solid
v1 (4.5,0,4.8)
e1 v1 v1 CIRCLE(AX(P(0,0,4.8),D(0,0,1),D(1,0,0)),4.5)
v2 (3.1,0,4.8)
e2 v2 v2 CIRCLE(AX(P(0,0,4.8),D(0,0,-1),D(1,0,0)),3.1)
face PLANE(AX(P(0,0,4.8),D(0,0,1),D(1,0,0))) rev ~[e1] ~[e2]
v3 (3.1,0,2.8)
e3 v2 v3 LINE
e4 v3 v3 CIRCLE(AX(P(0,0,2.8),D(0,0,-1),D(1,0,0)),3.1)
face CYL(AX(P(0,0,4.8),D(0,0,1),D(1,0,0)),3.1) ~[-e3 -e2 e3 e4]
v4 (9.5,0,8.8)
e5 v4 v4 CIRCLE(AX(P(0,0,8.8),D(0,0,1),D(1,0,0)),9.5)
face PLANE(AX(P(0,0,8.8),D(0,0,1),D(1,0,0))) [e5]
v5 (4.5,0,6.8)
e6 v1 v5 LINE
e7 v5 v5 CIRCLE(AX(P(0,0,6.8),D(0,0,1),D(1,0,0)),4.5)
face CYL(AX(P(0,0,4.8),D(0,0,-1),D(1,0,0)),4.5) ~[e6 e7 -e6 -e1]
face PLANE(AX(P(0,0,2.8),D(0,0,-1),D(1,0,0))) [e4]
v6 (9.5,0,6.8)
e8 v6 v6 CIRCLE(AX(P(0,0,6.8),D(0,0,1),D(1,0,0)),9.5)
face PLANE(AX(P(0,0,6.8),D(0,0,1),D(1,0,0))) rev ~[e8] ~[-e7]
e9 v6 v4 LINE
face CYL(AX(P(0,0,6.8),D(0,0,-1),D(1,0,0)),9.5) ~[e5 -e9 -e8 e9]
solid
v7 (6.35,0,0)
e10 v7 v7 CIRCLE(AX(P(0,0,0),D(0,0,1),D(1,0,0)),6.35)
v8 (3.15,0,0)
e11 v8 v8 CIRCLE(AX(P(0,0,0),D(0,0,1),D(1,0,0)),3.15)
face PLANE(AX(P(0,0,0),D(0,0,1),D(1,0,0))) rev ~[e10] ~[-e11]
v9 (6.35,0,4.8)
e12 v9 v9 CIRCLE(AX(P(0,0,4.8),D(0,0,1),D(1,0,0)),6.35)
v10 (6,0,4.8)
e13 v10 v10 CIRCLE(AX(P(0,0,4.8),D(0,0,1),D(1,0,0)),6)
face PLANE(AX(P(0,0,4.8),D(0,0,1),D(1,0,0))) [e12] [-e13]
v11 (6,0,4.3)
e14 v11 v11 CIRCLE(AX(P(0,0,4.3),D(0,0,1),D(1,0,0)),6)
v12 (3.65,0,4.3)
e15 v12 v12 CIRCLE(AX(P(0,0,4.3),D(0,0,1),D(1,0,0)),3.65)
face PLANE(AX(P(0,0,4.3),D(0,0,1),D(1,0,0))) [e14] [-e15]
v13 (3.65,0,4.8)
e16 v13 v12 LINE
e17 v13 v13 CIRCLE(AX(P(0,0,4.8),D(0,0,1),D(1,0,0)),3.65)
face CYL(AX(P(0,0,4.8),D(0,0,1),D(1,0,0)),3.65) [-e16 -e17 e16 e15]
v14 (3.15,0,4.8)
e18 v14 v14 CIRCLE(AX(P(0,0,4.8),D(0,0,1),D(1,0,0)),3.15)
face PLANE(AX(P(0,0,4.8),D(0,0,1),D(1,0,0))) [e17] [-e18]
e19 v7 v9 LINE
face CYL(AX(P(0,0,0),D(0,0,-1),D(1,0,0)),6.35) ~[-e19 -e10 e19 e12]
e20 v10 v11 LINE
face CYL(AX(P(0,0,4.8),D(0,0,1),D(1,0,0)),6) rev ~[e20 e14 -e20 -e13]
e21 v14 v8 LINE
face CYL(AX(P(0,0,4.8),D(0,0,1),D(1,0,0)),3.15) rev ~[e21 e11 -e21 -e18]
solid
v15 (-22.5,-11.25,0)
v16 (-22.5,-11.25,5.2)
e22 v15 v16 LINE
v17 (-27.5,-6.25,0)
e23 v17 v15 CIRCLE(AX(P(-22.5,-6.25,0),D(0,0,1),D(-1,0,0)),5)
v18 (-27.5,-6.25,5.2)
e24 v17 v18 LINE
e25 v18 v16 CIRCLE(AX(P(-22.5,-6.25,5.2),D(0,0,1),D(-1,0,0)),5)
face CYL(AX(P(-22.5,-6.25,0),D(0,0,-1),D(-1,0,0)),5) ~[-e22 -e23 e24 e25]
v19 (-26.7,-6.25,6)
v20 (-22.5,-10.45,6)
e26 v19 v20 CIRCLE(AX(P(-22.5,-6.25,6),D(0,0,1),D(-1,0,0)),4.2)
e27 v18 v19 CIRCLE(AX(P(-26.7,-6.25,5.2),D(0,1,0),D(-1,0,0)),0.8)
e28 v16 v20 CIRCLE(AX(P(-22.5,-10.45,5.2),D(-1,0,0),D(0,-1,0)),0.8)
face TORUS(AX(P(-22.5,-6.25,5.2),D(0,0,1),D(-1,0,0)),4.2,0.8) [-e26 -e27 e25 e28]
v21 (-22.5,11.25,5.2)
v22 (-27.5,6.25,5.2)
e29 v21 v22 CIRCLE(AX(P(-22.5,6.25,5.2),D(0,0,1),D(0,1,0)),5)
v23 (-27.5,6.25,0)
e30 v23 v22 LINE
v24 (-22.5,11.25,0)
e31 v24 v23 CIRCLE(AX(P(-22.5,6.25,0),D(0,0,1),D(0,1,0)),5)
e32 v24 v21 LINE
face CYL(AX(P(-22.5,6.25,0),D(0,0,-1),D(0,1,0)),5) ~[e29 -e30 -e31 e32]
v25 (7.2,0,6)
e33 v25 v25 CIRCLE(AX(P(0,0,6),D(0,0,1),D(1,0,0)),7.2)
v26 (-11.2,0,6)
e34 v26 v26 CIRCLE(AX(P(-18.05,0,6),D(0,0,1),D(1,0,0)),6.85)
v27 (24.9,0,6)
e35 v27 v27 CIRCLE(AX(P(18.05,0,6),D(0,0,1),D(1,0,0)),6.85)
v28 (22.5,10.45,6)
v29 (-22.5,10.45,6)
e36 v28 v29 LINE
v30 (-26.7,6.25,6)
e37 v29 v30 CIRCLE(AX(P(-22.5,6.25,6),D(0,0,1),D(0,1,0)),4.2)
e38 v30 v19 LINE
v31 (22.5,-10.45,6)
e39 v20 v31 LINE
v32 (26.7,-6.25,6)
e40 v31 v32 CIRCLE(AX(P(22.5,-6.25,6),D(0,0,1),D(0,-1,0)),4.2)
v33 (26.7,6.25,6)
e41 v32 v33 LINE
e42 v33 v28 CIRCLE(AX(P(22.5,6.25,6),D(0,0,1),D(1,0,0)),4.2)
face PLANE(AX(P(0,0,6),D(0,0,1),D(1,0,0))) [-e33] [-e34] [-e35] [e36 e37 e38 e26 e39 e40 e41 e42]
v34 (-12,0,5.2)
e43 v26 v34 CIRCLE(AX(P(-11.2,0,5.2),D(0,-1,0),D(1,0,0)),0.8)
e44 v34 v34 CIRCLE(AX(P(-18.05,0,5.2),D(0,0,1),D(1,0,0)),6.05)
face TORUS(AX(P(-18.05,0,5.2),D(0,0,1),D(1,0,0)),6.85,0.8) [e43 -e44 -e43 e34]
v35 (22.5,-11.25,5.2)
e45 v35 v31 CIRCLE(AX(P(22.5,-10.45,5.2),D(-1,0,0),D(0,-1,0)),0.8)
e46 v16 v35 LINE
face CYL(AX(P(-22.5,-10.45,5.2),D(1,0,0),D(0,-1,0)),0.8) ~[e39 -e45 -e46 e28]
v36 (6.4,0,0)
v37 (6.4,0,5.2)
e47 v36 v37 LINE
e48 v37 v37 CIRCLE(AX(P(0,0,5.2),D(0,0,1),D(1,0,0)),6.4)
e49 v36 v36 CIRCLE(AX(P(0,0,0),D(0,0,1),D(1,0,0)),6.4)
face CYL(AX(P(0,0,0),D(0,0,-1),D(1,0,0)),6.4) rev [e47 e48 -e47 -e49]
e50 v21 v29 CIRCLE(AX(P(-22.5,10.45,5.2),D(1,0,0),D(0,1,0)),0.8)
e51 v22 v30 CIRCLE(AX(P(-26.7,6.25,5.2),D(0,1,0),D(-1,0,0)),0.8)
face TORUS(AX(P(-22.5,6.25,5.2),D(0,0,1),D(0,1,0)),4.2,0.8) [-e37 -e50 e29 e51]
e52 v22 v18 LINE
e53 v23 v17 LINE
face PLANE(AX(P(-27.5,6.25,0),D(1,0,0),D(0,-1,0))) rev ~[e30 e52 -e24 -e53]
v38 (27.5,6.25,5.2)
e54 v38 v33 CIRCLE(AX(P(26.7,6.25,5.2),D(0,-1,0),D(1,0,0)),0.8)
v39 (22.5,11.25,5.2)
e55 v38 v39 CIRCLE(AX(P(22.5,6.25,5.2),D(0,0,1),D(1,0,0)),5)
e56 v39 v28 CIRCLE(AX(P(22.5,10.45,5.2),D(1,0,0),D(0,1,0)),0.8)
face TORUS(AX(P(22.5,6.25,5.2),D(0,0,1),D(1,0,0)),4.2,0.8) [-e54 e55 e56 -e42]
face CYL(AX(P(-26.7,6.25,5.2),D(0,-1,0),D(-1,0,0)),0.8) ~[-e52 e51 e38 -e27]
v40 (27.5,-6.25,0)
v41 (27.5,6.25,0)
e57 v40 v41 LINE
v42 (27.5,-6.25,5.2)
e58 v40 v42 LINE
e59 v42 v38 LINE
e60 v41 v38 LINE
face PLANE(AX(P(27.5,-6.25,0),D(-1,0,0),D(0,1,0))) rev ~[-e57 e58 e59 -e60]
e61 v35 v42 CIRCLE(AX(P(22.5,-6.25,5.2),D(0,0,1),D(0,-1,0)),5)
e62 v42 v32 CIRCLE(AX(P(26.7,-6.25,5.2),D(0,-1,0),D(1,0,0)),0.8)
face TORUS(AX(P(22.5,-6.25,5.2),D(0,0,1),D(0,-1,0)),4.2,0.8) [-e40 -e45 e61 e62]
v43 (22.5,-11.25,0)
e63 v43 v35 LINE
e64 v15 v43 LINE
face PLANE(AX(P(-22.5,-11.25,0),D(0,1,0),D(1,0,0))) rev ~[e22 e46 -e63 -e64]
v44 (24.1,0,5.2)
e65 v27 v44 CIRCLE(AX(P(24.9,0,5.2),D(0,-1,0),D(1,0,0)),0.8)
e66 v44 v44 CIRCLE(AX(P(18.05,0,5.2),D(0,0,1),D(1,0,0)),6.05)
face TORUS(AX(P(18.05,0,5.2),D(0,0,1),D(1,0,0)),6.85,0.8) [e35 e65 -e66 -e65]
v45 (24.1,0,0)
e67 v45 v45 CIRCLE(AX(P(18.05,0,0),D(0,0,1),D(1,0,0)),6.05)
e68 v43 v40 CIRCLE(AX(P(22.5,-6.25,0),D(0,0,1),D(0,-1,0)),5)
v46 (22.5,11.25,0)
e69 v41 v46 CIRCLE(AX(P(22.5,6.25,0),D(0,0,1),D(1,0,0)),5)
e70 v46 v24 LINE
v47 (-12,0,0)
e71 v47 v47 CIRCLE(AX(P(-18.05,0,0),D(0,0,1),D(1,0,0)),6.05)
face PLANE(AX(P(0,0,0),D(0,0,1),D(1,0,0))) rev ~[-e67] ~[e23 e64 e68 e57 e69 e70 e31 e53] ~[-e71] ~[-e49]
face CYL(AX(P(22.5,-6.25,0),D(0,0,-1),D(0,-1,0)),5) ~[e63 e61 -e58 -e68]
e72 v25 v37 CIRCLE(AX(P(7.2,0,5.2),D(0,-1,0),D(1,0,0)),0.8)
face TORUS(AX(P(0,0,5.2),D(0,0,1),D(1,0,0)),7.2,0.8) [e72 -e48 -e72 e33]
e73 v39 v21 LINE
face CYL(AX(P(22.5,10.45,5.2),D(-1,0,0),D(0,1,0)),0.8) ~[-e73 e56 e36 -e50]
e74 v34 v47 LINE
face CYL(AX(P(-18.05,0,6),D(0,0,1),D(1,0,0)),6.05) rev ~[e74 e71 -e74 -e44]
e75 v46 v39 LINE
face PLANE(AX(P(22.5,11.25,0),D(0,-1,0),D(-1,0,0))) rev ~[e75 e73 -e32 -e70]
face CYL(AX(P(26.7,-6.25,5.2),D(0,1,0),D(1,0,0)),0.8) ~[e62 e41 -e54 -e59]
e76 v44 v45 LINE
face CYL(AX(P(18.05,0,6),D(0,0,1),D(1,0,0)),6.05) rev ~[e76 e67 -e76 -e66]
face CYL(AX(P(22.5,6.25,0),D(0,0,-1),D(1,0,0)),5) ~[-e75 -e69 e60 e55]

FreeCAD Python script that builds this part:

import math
import FreeCAD as App
import Part
import Sketcher


def edges_at(feature, points):
    """Names of the edges that pass closest to the given points."""
    edges = feature.Shape.Edges
    near = lambda p: min(range(len(edges)), key=lambda i: edges[i].distToShape(Part.Vertex(*p))[0])
    return sorted({f"Edge{near(p) + 1}" for p in points})

doc = App.newDocument("Part")
body = doc.addObject("PartDesign::Body", "Body")

sketch1 = doc.addObject("Sketcher::SketchObject", "Sketch")
body.addObject(sketch1)
sketch1.AttachmentSupport = (doc.XY_Plane, [""])
sketch1.MapMode = "FlatFace"
sketch1.addGeometry(Part.Circle(App.Vector(0, 0, 0), App.Vector(0, 0, 1), 6.35), False)
sketch1.addConstraint([
    Sketcher.Constraint("Coincident", 0, 3, -1, 1),
    Sketcher.Constraint("Diameter", 0, 12.7),
])
pad1 = doc.addObject("PartDesign::Pad", "Pad")
body.addObject(pad1)
pad1.Profile = sketch1
pad1.Length = 4.8

sketch2 = doc.addObject("Sketcher::SketchObject", "Sketch001")
body.addObject(sketch2)
sketch2.AttachmentSupport = (doc.XY_Plane, [""])
sketch2.MapMode = "FlatFace"
sketch2.AttachmentOffset = App.Placement(App.Vector(0, 0, 4.8), App.Rotation())
sketch2.addGeometry(Part.Circle(App.Vector(0, 0, 0), App.Vector(0, 0, 1), 3.15), False)
sketch2.addConstraint([
    Sketcher.Constraint("Coincident", 0, 3, -1, 1),
    Sketcher.Constraint("Diameter", 0, 6.3),
])
pocket1 = doc.addObject("PartDesign::Pocket", "Pocket")
body.addObject(pocket1)
pocket1.Profile = sketch2
pocket1.Type = "ThroughAll"

sketch3 = doc.addObject("Sketcher::SketchObject", "Sketch002")
body.addObject(sketch3)
sketch3.AttachmentSupport = (doc.XY_Plane, [""])
sketch3.MapMode = "FlatFace"
sketch3.AttachmentOffset = App.Placement(App.Vector(0, 0, 4.8), App.Rotation())
sketch3.addGeometry([
    Part.Circle(App.Vector(0, 0, 0), App.Vector(0, 0, 1), 6),
    Part.Circle(App.Vector(0, 0, 0), App.Vector(0, 0, 1), 3.65),
], False)
sketch3.addConstraint([
    Sketcher.Constraint("Coincident", 0, 3, -1, 1),
    Sketcher.Constraint("Coincident", 1, 3, -1, 1),
    Sketcher.Constraint("Diameter", 0, 12.0),
    Sketcher.Constraint("Diameter", 1, 7.3),
])
pocket2 = doc.addObject("PartDesign::Pocket", "Pocket001")
body.addObject(pocket2)
pocket2.Profile = sketch3
pocket2.Length = 0.5
body2 = doc.addObject("PartDesign::Body", "Body001")

sketch4 = doc.addObject("Sketcher::SketchObject", "Sketch003")
body2.addObject(sketch4)
sketch4.AttachmentSupport = (doc.getObject("XY_Plane001"), [""])
sketch4.MapMode = "FlatFace"
sketch4.addGeometry([
    Part.ArcOfCircle(Part.Circle(App.Vector(22.5, 6.25, 0), App.Vector(0, 0, 1), 5), math.radians(0), math.radians(90)),
    Part.LineSegment(App.Vector(22.5, 11.25, 0), App.Vector(-22.5, 11.25, 0)),
    Part.ArcOfCircle(Part.Circle(App.Vector(-22.5, 6.25, 0), App.Vector(0, 0, 1), 5), math.radians(90), math.radians(180)),
    Part.LineSegment(App.Vector(-27.5, 6.25, 0), App.Vector(-27.5, -6.25, 0)),
    Part.ArcOfCircle(Part.Circle(App.Vector(-22.5, -6.25, 0), App.Vector(0, 0, 1), 5), math.radians(180), math.radians(270)),
    Part.LineSegment(App.Vector(-22.5, -11.25, 0), App.Vector(22.5, -11.25, 0)),
    Part.ArcOfCircle(Part.Circle(App.Vector(22.5, -6.25, 0), App.Vector(0, 0, 1), 5), math.radians(-90), math.radians(0)),
    Part.LineSegment(App.Vector(27.5, -6.25, 0), App.Vector(27.5, 6.25, 0)),
    Part.Circle(App.Vector(0, 0, 0), App.Vector(0, 0, 1), 6.4),
], False)
sketch4.addConstraint([
    Sketcher.Constraint("Tangent", 0, 2, 1, 1),
    Sketcher.Constraint("Tangent", 1, 2, 2, 1),
    Sketcher.Constraint("Tangent", 2, 2, 3, 1),
    Sketcher.Constraint("Tangent", 3, 2, 4, 1),
    Sketcher.Constraint("Tangent", 4, 2, 5, 1),
    Sketcher.Constraint("Tangent", 5, 2, 6, 1),
    Sketcher.Constraint("Tangent", 6, 2, 7, 1),
    Sketcher.Constraint("Tangent", 7, 2, 0, 1),
    Sketcher.Constraint("Horizontal", 1),
    Sketcher.Constraint("Vertical", 3),
    Sketcher.Constraint("Horizontal", 5),
    Sketcher.Constraint("Vertical", 7),
    Sketcher.Constraint("Coincident", 8, 3, -1, 1),
    Sketcher.Constraint("Equal", 0, 2),
    Sketcher.Constraint("Equal", 2, 4),
    Sketcher.Constraint("Equal", 4, 6),
    Sketcher.Constraint("Symmetric", 0, 3, 4, 3, -1, 1),
    Sketcher.Constraint("Radius", 0, 5.0),
    Sketcher.Constraint("Diameter", 8, 12.8),
    Sketcher.Constraint("DistanceX", 1, 2, 1, 1, 45.0),
    Sketcher.Constraint("DistanceY", 3, 2, 3, 1, 12.5),
])
pad2 = doc.addObject("PartDesign::Pad", "Pad001")
body2.addObject(pad2)
pad2.Profile = sketch4
pad2.Length = 6

sketch5 = doc.addObject("Sketcher::SketchObject", "Sketch004")
body2.addObject(sketch5)
sketch5.AttachmentSupport = (doc.getObject("XY_Plane001"), [""])
sketch5.MapMode = "FlatFace"
sketch5.AttachmentOffset = App.Placement(App.Vector(0, 0, 6), App.Rotation())
sketch5.addGeometry([
    Part.Circle(App.Vector(-18.05, 0, 0), App.Vector(0, 0, 1), 6.05),
    Part.Circle(App.Vector(18.05, 0, 0), App.Vector(0, 0, 1), 6.05),
], False)
sketch5.addConstraint([
    Sketcher.Constraint("Equal", 0, 1),
    Sketcher.Constraint("Symmetric", 0, 3, 1, 3, -1, 1),
    Sketcher.Constraint("PointOnObject", 0, 3, -1),
    Sketcher.Constraint("Diameter", 0, 12.1),
    Sketcher.Constraint("DistanceX", 0, 3, 1, 3, 36.1),
])
pocket3 = doc.addObject("PartDesign::Pocket", "Pocket002")
body2.addObject(pocket3)
pocket3.Profile = sketch5
pocket3.Type = "ThroughAll"
doc.recompute()

fillet = doc.addObject("PartDesign::Fillet", "Fillet")
body2.addObject(fillet)
fillet.Base = (pocket3, edges_at(pocket3, [
    (27.5, 0, 6),
    (26.036, -9.786, 6),
    (26.036, 9.786, 6),
    (0, -11.25, 6),
    (0, 11.25, 6),
    (-26.036, -9.786, 6),
    (-26.036, 9.786, 6),
    (-27.5, 0, 6),
    (-24.1, 0, 6),
    (-6.4, 0, 6),
    (12, 0, 6),
]))
fillet.Radius = 0.8
body3 = doc.addObject("PartDesign::Body", "Body002")

sketch6 = doc.addObject("Sketcher::SketchObject", "Sketch005")
body3.addObject(sketch6)
sketch6.AttachmentSupport = (doc.getObject("XY_Plane002"), [""])
sketch6.MapMode = "FlatFace"
sketch6.AttachmentOffset = App.Placement(App.Vector(0, 0, 4.8), App.Rotation())
sketch6.addGeometry(Part.Circle(App.Vector(0, 0, 0), App.Vector(0, 0, 1), 4.5), False)
sketch6.addConstraint([
    Sketcher.Constraint("Coincident", 0, 3, -1, 1),
    Sketcher.Constraint("Diameter", 0, 9.0),
])
pad3 = doc.addObject("PartDesign::Pad", "Pad002")
body3.addObject(pad3)
pad3.Profile = sketch6
pad3.Length = 2

sketch7 = doc.addObject("Sketcher::SketchObject", "Sketch006")
body3.addObject(sketch7)
sketch7.AttachmentSupport = (doc.getObject("XY_Plane002"), [""])
sketch7.MapMode = "FlatFace"
sketch7.AttachmentOffset = App.Placement(App.Vector(0, 0, 6.8), App.Rotation())
sketch7.addGeometry(Part.Circle(App.Vector(0, 0, 0), App.Vector(0, 0, 1), 9.5), False)
sketch7.addConstraint([
    Sketcher.Constraint("Coincident", 0, 3, -1, 1),
    Sketcher.Constraint("Diameter", 0, 19.0),
])
pad4 = doc.addObject("PartDesign::Pad", "Pad003")
body3.addObject(pad4)
pad4.Profile = sketch7
pad4.Length = 2

sketch8 = doc.addObject("Sketcher::SketchObject", "Sketch007")
body3.addObject(sketch8)
sketch8.AttachmentSupport = (doc.getObject("XY_Plane002"), [""])
sketch8.MapMode = "FlatFace"
sketch8.AttachmentOffset = App.Placement(App.Vector(0, 0, 4.8), App.Rotation())
sketch8.addGeometry(Part.Circle(App.Vector(0, 0, 0), App.Vector(0, 0, 1), 3.1), False)
sketch8.addConstraint([
    Sketcher.Constraint("Coincident", 0, 3, -1, 1),
    Sketcher.Constraint("Diameter", 0, 6.2),
])
pad5 = doc.addObject("PartDesign::Pad", "Pad004")
body3.addObject(pad5)
pad5.Profile = sketch8
pad5.Length = 2
pad5.Reversed = True

doc.recompute()
